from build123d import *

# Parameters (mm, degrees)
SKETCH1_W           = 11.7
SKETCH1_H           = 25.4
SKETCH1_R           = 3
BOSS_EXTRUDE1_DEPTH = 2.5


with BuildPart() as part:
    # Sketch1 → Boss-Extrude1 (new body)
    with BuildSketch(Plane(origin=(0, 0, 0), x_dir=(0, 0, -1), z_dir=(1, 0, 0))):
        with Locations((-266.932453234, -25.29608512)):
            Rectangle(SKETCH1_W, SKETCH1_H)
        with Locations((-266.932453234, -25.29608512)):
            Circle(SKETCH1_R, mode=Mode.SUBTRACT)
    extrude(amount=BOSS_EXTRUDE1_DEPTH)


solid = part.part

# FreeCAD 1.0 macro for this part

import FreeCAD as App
import Part
import Sketcher

V = App.Vector
Q = App.Units.Quantity


def add_polygon(sketch, points):
    """Adds a closed chain of lines whose ends are joined by coincident constraints."""
    first, n = sketch.GeometryCount, len(points)
    for a, b in zip(points, points[1:] + points[:1]):
        sketch.addGeometry(Part.LineSegment(App.Vector(*a, 0), App.Vector(*b, 0)), False)
    for i in range(n):
        sketch.addConstraint(Sketcher.Constraint("Coincident", first + i, 2, first + (i + 1) % n, 1))

doc = App.newDocument("Part")
body = doc.addObject("PartDesign::Body", "Body")

sketch1 = doc.addObject("Sketcher::SketchObject", "Sketch")
body.addObject(sketch1)
sketch1.AttachmentSupport = (doc.YZ_Plane, [""])
sketch1.MapMode = "FlatFace"
add_polygon(sketch1, [(-12.6, 272.8), (-38, 272.8), (-38, 261.1), (-12.6, 261.1)])
sketch1.addGeometry(Part.Circle(V(-25.3, 266.9, 0), V(0, 0, 1), 3), False)
sketch1.addConstraint([
    Sketcher.Constraint("Horizontal", 0),
    Sketcher.Constraint("Vertical", 1),
    Sketcher.Constraint("Horizontal", 2),
    Sketcher.Constraint("Vertical", 3),
    Sketcher.Constraint("Diameter", 4, Q("6 mm")),
    Sketcher.Constraint("DistanceX", 0, 2, 0, 1, Q("25.4 mm")),
    Sketcher.Constraint("DistanceY", 1, 2, 1, 1, Q("11.7 mm")),
    Sketcher.Constraint("DistanceX", 0, 2, 4, 3, Q("12.7 mm")),
    Sketcher.Constraint("DistanceY", 4, 3, 0, 2, Q("5.85 mm")),
    Sketcher.Constraint("DistanceX", 4, 3, -1, 1, Q("25.296085 mm")),
    Sketcher.Constraint("DistanceY", -1, 1, 4, 3, Q("266.932453 mm")),
])
pad1 = doc.addObject("PartDesign::Pad", "Pad")
body.addObject(pad1)
pad1.Profile = sketch1
pad1.Length = 2.5

doc.recompute()
